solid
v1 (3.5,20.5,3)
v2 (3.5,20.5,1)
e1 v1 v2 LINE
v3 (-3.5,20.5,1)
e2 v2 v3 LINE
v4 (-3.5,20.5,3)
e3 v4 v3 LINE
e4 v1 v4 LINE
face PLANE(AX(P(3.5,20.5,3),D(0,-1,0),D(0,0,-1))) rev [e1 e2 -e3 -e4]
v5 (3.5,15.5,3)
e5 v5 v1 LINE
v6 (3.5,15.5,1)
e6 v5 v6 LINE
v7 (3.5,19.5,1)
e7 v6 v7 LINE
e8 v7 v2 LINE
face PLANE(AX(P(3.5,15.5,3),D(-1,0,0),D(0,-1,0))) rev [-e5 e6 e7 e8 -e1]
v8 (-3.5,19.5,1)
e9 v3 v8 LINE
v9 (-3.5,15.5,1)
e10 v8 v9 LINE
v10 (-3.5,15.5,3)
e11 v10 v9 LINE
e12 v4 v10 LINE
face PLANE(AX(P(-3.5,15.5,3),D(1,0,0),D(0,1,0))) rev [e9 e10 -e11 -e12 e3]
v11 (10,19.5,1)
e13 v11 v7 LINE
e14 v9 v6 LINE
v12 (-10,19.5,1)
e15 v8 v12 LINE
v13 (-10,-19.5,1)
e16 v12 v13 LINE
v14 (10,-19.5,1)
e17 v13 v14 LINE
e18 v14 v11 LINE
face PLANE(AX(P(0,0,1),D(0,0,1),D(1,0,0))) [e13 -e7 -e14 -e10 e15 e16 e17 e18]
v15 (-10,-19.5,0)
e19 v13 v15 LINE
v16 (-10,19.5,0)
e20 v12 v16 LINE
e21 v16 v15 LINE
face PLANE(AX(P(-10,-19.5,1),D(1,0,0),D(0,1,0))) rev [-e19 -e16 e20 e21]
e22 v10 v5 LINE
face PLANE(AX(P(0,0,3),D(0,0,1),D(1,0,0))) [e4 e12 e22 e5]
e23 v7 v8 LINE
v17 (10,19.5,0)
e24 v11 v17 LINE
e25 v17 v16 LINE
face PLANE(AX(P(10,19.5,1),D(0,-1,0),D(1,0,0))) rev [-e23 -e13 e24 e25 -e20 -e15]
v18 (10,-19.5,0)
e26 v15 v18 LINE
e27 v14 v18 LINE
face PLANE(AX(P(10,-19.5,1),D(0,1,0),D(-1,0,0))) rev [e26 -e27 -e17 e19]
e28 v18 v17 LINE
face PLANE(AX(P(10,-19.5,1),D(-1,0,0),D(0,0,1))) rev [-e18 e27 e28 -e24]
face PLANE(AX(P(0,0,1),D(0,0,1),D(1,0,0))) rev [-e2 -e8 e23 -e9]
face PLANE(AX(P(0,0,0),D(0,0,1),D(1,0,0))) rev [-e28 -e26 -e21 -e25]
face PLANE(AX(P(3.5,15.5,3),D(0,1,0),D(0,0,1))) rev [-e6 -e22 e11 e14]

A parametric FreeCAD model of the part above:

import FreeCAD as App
import Part
import Sketcher

V = App.Vector

doc = App.newDocument("Part")
params = doc.addObject("Spreadsheet::Sheet", "Params")
for row, (alias, value) in enumerate([
    ("sketch1_width", "20 mm"),
    ("sketch1_height", "39 mm"),
    ("pad1_length", "1 mm"),
    ("sketch2_width", "7 mm"),
    ("sketch2_height", "5 mm"),
    ("pad2_length", "2 mm"),
], start=1):
    params.set(f"A{row}", alias)
    params.set(f"B{row}", "=" + value)
    params.setAlias(f"B{row}", alias)

body = doc.addObject("PartDesign::Body", "Body")

# Sketch on XY plane
sketch1 = doc.addObject("Sketcher::SketchObject", "Sketch")
body.addObject(sketch1)
sketch1.AttachmentSupport = (doc.XY_Plane, [""])
sketch1.MapMode = "FlatFace"
sketch1.addGeometry([
    Part.LineSegment(V(-10, 20, 0), V(-10, -20, 0)),
    Part.LineSegment(V(-10, -20, 0), V(10, -20, 0)),
    Part.LineSegment(V(10, -20, 0), V(10, 20, 0)),
    Part.LineSegment(V(10, 20, 0), V(-10, 20, 0)),
], False)
sketch1.addConstraint([
    Sketcher.Constraint("Coincident", 0, 2, 1, 1),
    Sketcher.Constraint("Coincident", 1, 2, 2, 1),
    Sketcher.Constraint("Coincident", 2, 2, 3, 1),
    Sketcher.Constraint("Coincident", 3, 2, 0, 1),
    Sketcher.Constraint("Vertical", 0),
    Sketcher.Constraint("Horizontal", 1),
    Sketcher.Constraint("Vertical", 2),
    Sketcher.Constraint("Horizontal", 3),
    Sketcher.Constraint("Symmetric", 0, 2, 2, 2, -1, 1),
    Sketcher.Constraint("DistanceX", 1, 1, 1, 2, 20.0),
    Sketcher.Constraint("DistanceY", 0, 2, 0, 1, 39.0),
])
sketch1.setExpression("Constraints[9]", "Params.sketch1_width")
sketch1.setExpression("Constraints[10]", "Params.sketch1_height")
pad1 = doc.addObject("PartDesign::Pad", "Pad")
body.addObject(pad1)
pad1.Profile = sketch1
pad1.setExpression("Length", "Params.pad1_length")

# Sketch on XY plane
sketch2 = doc.addObject("Sketcher::SketchObject", "Sketch001")
body.addObject(sketch2)
sketch2.AttachmentSupport = (doc.XY_Plane, [""])
sketch2.MapMode = "FlatFace"
sketch2.AttachmentOffset = App.Placement(V(0, 0, 1), App.Rotation())
sketch2.addGeometry([
    Part.LineSegment(V(-4, 20, 0), V(-4, 16, 0)),
    Part.LineSegment(V(-4, 16, 0), V(4, 16, 0)),
    Part.LineSegment(V(4, 16, 0), V(4, 20, 0)),
    Part.LineSegment(V(4, 20, 0), V(-4, 20, 0)),
], False)
sketch2.addConstraint([
    Sketcher.Constraint("Coincident", 0, 2, 1, 1),
    Sketcher.Constraint("Coincident", 1, 2, 2, 1),
    Sketcher.Constraint("Coincident", 2, 2, 3, 1),
    Sketcher.Constraint("Coincident", 3, 2, 0, 1),
    Sketcher.Constraint("Vertical", 0),
    Sketcher.Constraint("Horizontal", 1),
    Sketcher.Constraint("Vertical", 2),
    Sketcher.Constraint("Horizontal", 3),
    Sketcher.Constraint("DistanceX", 1, 1, 1, 2, 7.0),
    Sketcher.Constraint("DistanceY", 0, 2, 0, 1, 5.0),
    Sketcher.Constraint("DistanceX", 0, 2, -1, 1, 3.5),
    Sketcher.Constraint("DistanceY", -1, 1, 0, 2, 15.5),
])
sketch2.setExpression("Constraints[8]", "Params.sketch2_width")
sketch2.setExpression("Constraints[9]", "Params.sketch2_height")
pad2 = doc.addObject("PartDesign::Pad", "Pad001")
body.addObject(pad2)
pad2.Profile = sketch2
pad2.setExpression("Length", "Params.pad2_length")

doc.recompute()
